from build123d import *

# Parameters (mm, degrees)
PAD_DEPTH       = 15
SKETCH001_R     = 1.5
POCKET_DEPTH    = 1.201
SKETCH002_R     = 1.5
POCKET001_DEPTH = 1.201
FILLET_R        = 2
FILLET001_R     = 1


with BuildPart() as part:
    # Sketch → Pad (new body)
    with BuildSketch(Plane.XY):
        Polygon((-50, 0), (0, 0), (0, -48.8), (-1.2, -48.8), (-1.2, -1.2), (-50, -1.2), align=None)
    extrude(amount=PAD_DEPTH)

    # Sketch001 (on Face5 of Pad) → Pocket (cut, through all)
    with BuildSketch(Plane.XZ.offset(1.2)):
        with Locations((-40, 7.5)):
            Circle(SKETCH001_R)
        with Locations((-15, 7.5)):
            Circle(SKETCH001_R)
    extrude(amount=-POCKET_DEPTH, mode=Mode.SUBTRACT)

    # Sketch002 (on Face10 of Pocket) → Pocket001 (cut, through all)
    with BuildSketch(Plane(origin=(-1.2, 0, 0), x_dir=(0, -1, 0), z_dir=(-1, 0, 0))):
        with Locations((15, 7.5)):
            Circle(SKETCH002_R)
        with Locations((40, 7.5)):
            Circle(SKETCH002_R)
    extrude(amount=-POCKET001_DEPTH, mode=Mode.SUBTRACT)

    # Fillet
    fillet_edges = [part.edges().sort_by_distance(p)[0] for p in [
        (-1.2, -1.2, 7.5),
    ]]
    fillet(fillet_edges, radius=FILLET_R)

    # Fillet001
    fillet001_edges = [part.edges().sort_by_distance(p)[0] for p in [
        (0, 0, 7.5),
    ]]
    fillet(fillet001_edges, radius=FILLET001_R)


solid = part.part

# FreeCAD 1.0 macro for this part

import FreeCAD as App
import Part
import Sketcher
Q = App.Units.Quantity


def edges_at(feature, points):
    """Names of the edges that pass closest to the given points."""
    edges = feature.Shape.Edges
    near = lambda p: min(range(len(edges)), key=lambda i: edges[i].distToShape(Part.Vertex(*p))[0])
    return sorted({f"Edge{near(p) + 1}" for p in points})


def add_polygon(sketch, points):
    """Adds a closed chain of lines whose ends are joined by coincident constraints."""
    first, n = sketch.GeometryCount, len(points)
    for a, b in zip(points, points[1:] + points[:1]):
        sketch.addGeometry(Part.LineSegment(App.Vector(*a, 0), App.Vector(*b, 0)), False)
    for i in range(n):
        sketch.addConstraint(Sketcher.Constraint("Coincident", first + i, 2, first + (i + 1) % n, 1))

doc = App.newDocument("Part")
body = doc.addObject("PartDesign::Body", "Body")

sketch1 = body.newObject("Sketcher::SketchObject", "Sketch")
sketch1.AttachmentSupport = (doc.getObject("XY_Plane"), [""])
sketch1.MapMode = "FlatFace"
add_polygon(sketch1, [(0, 0), (-50, 0), (-50, -1.2), (-1.2, -1.2), (-1.2, -48.8), (0, -48.8)])
sketch1.addConstraint([
    Sketcher.Constraint("Horizontal", 0),
    Sketcher.Constraint("Vertical", 1),
    Sketcher.Constraint("Horizontal", 2),
    Sketcher.Constraint("Vertical", 3),
    Sketcher.Constraint("Horizontal", 4),
    Sketcher.Constraint("Vertical", 5),
    Sketcher.Constraint("Coincident", 5, 2, -1, 1),
    Sketcher.Constraint("Equal", 4, 1),
    Sketcher.Constraint("Equal", 2, 5),
    Sketcher.Constraint("DistanceX", 0, 2, 0, 1, Q("50 mm")),
    Sketcher.Constraint("DistanceX", 2, 1, 2, 2, Q("48.8 mm")),
])
pad1 = body.newObject("PartDesign::Pad", "Pad")
pad1.Profile = sketch1
pad1.Length = 15

sketch2 = body.newObject("Sketcher::SketchObject", "Sketch001")
sketch2.AttachmentSupport = (doc.getObject("XZ_Plane"), [""])
sketch2.MapMode = "FlatFace"
sketch2.AttachmentOffset = App.Placement(App.Vector(0, 0, 1.2), App.Rotation())
sketch2.addGeometry([
    Part.Circle(App.Vector(-40, 7.5, 0), App.Vector(0, 0, 1), 1.5),
    Part.Circle(App.Vector(-15, 7.5, 0), App.Vector(0, 0, 1), 1.5),
], False)
sketch2.addConstraint([
    Sketcher.Constraint("Equal", 0, 1),
    Sketcher.Constraint("Horizontal", 0, 3, 1, 3),
    Sketcher.Constraint("Diameter", 0, Q("3 mm")),
    Sketcher.Constraint("DistanceX", 0, 3, -1, 1, Q("40 mm")),
    Sketcher.Constraint("DistanceX", 1, 3, -1, 1, Q("15 mm")),
    Sketcher.Constraint("DistanceY", -1, 1, 0, 3, Q("7.5 mm")),
])
pocket1 = body.newObject("PartDesign::Pocket", "Pocket")
pocket1.Profile = sketch2
pocket1.Type = "ThroughAll"

sketch3 = body.newObject("Sketcher::SketchObject", "Sketch002")
sketch3.AttachmentSupport = (doc.getObject("YZ_Plane"), [""])
sketch3.MapMode = "FlatFace"
sketch3.AttachmentOffset = App.Placement(App.Vector(0, 0, -1.2), App.Rotation())
sketch3.addGeometry([
    Part.Circle(App.Vector(-15, 7.5, 0), App.Vector(0, 0, 1), 1.5),
    Part.Circle(App.Vector(-40, 7.5, 0), App.Vector(0, 0, 1), 1.5),
], False)
sketch3.addConstraint([
    Sketcher.Constraint("Equal", 0, 1),
    Sketcher.Constraint("Horizontal", 0, 3, 1, 3),
    Sketcher.Constraint("Diameter", 0, Q("3 mm")),
    Sketcher.Constraint("DistanceX", 0, 3, -1, 1, Q("15 mm")),
    Sketcher.Constraint("DistanceX", 1, 3, -1, 1, Q("40 mm")),
    Sketcher.Constraint("DistanceY", -1, 1, 0, 3, Q("7.5 mm")),
])
pocket2 = body.newObject("PartDesign::Pocket", "Pocket001")
pocket2.Profile = sketch3
pocket2.Type = "ThroughAll"
pocket2.Reversed = True
doc.recompute()

fillet = body.newObject("PartDesign::Fillet", "Fillet")
fillet.Base = (pocket2, edges_at(pocket2, [(-1.2, -1.2, 7.5)]))
fillet.Radius = 2
doc.recompute()

fillet2 = body.newObject("PartDesign::Fillet", "Fillet001")
fillet2.Base = (fillet, edges_at(fillet, [(0, 0, 7.5)]))
fillet2.Radius = 1

doc.recompute()
